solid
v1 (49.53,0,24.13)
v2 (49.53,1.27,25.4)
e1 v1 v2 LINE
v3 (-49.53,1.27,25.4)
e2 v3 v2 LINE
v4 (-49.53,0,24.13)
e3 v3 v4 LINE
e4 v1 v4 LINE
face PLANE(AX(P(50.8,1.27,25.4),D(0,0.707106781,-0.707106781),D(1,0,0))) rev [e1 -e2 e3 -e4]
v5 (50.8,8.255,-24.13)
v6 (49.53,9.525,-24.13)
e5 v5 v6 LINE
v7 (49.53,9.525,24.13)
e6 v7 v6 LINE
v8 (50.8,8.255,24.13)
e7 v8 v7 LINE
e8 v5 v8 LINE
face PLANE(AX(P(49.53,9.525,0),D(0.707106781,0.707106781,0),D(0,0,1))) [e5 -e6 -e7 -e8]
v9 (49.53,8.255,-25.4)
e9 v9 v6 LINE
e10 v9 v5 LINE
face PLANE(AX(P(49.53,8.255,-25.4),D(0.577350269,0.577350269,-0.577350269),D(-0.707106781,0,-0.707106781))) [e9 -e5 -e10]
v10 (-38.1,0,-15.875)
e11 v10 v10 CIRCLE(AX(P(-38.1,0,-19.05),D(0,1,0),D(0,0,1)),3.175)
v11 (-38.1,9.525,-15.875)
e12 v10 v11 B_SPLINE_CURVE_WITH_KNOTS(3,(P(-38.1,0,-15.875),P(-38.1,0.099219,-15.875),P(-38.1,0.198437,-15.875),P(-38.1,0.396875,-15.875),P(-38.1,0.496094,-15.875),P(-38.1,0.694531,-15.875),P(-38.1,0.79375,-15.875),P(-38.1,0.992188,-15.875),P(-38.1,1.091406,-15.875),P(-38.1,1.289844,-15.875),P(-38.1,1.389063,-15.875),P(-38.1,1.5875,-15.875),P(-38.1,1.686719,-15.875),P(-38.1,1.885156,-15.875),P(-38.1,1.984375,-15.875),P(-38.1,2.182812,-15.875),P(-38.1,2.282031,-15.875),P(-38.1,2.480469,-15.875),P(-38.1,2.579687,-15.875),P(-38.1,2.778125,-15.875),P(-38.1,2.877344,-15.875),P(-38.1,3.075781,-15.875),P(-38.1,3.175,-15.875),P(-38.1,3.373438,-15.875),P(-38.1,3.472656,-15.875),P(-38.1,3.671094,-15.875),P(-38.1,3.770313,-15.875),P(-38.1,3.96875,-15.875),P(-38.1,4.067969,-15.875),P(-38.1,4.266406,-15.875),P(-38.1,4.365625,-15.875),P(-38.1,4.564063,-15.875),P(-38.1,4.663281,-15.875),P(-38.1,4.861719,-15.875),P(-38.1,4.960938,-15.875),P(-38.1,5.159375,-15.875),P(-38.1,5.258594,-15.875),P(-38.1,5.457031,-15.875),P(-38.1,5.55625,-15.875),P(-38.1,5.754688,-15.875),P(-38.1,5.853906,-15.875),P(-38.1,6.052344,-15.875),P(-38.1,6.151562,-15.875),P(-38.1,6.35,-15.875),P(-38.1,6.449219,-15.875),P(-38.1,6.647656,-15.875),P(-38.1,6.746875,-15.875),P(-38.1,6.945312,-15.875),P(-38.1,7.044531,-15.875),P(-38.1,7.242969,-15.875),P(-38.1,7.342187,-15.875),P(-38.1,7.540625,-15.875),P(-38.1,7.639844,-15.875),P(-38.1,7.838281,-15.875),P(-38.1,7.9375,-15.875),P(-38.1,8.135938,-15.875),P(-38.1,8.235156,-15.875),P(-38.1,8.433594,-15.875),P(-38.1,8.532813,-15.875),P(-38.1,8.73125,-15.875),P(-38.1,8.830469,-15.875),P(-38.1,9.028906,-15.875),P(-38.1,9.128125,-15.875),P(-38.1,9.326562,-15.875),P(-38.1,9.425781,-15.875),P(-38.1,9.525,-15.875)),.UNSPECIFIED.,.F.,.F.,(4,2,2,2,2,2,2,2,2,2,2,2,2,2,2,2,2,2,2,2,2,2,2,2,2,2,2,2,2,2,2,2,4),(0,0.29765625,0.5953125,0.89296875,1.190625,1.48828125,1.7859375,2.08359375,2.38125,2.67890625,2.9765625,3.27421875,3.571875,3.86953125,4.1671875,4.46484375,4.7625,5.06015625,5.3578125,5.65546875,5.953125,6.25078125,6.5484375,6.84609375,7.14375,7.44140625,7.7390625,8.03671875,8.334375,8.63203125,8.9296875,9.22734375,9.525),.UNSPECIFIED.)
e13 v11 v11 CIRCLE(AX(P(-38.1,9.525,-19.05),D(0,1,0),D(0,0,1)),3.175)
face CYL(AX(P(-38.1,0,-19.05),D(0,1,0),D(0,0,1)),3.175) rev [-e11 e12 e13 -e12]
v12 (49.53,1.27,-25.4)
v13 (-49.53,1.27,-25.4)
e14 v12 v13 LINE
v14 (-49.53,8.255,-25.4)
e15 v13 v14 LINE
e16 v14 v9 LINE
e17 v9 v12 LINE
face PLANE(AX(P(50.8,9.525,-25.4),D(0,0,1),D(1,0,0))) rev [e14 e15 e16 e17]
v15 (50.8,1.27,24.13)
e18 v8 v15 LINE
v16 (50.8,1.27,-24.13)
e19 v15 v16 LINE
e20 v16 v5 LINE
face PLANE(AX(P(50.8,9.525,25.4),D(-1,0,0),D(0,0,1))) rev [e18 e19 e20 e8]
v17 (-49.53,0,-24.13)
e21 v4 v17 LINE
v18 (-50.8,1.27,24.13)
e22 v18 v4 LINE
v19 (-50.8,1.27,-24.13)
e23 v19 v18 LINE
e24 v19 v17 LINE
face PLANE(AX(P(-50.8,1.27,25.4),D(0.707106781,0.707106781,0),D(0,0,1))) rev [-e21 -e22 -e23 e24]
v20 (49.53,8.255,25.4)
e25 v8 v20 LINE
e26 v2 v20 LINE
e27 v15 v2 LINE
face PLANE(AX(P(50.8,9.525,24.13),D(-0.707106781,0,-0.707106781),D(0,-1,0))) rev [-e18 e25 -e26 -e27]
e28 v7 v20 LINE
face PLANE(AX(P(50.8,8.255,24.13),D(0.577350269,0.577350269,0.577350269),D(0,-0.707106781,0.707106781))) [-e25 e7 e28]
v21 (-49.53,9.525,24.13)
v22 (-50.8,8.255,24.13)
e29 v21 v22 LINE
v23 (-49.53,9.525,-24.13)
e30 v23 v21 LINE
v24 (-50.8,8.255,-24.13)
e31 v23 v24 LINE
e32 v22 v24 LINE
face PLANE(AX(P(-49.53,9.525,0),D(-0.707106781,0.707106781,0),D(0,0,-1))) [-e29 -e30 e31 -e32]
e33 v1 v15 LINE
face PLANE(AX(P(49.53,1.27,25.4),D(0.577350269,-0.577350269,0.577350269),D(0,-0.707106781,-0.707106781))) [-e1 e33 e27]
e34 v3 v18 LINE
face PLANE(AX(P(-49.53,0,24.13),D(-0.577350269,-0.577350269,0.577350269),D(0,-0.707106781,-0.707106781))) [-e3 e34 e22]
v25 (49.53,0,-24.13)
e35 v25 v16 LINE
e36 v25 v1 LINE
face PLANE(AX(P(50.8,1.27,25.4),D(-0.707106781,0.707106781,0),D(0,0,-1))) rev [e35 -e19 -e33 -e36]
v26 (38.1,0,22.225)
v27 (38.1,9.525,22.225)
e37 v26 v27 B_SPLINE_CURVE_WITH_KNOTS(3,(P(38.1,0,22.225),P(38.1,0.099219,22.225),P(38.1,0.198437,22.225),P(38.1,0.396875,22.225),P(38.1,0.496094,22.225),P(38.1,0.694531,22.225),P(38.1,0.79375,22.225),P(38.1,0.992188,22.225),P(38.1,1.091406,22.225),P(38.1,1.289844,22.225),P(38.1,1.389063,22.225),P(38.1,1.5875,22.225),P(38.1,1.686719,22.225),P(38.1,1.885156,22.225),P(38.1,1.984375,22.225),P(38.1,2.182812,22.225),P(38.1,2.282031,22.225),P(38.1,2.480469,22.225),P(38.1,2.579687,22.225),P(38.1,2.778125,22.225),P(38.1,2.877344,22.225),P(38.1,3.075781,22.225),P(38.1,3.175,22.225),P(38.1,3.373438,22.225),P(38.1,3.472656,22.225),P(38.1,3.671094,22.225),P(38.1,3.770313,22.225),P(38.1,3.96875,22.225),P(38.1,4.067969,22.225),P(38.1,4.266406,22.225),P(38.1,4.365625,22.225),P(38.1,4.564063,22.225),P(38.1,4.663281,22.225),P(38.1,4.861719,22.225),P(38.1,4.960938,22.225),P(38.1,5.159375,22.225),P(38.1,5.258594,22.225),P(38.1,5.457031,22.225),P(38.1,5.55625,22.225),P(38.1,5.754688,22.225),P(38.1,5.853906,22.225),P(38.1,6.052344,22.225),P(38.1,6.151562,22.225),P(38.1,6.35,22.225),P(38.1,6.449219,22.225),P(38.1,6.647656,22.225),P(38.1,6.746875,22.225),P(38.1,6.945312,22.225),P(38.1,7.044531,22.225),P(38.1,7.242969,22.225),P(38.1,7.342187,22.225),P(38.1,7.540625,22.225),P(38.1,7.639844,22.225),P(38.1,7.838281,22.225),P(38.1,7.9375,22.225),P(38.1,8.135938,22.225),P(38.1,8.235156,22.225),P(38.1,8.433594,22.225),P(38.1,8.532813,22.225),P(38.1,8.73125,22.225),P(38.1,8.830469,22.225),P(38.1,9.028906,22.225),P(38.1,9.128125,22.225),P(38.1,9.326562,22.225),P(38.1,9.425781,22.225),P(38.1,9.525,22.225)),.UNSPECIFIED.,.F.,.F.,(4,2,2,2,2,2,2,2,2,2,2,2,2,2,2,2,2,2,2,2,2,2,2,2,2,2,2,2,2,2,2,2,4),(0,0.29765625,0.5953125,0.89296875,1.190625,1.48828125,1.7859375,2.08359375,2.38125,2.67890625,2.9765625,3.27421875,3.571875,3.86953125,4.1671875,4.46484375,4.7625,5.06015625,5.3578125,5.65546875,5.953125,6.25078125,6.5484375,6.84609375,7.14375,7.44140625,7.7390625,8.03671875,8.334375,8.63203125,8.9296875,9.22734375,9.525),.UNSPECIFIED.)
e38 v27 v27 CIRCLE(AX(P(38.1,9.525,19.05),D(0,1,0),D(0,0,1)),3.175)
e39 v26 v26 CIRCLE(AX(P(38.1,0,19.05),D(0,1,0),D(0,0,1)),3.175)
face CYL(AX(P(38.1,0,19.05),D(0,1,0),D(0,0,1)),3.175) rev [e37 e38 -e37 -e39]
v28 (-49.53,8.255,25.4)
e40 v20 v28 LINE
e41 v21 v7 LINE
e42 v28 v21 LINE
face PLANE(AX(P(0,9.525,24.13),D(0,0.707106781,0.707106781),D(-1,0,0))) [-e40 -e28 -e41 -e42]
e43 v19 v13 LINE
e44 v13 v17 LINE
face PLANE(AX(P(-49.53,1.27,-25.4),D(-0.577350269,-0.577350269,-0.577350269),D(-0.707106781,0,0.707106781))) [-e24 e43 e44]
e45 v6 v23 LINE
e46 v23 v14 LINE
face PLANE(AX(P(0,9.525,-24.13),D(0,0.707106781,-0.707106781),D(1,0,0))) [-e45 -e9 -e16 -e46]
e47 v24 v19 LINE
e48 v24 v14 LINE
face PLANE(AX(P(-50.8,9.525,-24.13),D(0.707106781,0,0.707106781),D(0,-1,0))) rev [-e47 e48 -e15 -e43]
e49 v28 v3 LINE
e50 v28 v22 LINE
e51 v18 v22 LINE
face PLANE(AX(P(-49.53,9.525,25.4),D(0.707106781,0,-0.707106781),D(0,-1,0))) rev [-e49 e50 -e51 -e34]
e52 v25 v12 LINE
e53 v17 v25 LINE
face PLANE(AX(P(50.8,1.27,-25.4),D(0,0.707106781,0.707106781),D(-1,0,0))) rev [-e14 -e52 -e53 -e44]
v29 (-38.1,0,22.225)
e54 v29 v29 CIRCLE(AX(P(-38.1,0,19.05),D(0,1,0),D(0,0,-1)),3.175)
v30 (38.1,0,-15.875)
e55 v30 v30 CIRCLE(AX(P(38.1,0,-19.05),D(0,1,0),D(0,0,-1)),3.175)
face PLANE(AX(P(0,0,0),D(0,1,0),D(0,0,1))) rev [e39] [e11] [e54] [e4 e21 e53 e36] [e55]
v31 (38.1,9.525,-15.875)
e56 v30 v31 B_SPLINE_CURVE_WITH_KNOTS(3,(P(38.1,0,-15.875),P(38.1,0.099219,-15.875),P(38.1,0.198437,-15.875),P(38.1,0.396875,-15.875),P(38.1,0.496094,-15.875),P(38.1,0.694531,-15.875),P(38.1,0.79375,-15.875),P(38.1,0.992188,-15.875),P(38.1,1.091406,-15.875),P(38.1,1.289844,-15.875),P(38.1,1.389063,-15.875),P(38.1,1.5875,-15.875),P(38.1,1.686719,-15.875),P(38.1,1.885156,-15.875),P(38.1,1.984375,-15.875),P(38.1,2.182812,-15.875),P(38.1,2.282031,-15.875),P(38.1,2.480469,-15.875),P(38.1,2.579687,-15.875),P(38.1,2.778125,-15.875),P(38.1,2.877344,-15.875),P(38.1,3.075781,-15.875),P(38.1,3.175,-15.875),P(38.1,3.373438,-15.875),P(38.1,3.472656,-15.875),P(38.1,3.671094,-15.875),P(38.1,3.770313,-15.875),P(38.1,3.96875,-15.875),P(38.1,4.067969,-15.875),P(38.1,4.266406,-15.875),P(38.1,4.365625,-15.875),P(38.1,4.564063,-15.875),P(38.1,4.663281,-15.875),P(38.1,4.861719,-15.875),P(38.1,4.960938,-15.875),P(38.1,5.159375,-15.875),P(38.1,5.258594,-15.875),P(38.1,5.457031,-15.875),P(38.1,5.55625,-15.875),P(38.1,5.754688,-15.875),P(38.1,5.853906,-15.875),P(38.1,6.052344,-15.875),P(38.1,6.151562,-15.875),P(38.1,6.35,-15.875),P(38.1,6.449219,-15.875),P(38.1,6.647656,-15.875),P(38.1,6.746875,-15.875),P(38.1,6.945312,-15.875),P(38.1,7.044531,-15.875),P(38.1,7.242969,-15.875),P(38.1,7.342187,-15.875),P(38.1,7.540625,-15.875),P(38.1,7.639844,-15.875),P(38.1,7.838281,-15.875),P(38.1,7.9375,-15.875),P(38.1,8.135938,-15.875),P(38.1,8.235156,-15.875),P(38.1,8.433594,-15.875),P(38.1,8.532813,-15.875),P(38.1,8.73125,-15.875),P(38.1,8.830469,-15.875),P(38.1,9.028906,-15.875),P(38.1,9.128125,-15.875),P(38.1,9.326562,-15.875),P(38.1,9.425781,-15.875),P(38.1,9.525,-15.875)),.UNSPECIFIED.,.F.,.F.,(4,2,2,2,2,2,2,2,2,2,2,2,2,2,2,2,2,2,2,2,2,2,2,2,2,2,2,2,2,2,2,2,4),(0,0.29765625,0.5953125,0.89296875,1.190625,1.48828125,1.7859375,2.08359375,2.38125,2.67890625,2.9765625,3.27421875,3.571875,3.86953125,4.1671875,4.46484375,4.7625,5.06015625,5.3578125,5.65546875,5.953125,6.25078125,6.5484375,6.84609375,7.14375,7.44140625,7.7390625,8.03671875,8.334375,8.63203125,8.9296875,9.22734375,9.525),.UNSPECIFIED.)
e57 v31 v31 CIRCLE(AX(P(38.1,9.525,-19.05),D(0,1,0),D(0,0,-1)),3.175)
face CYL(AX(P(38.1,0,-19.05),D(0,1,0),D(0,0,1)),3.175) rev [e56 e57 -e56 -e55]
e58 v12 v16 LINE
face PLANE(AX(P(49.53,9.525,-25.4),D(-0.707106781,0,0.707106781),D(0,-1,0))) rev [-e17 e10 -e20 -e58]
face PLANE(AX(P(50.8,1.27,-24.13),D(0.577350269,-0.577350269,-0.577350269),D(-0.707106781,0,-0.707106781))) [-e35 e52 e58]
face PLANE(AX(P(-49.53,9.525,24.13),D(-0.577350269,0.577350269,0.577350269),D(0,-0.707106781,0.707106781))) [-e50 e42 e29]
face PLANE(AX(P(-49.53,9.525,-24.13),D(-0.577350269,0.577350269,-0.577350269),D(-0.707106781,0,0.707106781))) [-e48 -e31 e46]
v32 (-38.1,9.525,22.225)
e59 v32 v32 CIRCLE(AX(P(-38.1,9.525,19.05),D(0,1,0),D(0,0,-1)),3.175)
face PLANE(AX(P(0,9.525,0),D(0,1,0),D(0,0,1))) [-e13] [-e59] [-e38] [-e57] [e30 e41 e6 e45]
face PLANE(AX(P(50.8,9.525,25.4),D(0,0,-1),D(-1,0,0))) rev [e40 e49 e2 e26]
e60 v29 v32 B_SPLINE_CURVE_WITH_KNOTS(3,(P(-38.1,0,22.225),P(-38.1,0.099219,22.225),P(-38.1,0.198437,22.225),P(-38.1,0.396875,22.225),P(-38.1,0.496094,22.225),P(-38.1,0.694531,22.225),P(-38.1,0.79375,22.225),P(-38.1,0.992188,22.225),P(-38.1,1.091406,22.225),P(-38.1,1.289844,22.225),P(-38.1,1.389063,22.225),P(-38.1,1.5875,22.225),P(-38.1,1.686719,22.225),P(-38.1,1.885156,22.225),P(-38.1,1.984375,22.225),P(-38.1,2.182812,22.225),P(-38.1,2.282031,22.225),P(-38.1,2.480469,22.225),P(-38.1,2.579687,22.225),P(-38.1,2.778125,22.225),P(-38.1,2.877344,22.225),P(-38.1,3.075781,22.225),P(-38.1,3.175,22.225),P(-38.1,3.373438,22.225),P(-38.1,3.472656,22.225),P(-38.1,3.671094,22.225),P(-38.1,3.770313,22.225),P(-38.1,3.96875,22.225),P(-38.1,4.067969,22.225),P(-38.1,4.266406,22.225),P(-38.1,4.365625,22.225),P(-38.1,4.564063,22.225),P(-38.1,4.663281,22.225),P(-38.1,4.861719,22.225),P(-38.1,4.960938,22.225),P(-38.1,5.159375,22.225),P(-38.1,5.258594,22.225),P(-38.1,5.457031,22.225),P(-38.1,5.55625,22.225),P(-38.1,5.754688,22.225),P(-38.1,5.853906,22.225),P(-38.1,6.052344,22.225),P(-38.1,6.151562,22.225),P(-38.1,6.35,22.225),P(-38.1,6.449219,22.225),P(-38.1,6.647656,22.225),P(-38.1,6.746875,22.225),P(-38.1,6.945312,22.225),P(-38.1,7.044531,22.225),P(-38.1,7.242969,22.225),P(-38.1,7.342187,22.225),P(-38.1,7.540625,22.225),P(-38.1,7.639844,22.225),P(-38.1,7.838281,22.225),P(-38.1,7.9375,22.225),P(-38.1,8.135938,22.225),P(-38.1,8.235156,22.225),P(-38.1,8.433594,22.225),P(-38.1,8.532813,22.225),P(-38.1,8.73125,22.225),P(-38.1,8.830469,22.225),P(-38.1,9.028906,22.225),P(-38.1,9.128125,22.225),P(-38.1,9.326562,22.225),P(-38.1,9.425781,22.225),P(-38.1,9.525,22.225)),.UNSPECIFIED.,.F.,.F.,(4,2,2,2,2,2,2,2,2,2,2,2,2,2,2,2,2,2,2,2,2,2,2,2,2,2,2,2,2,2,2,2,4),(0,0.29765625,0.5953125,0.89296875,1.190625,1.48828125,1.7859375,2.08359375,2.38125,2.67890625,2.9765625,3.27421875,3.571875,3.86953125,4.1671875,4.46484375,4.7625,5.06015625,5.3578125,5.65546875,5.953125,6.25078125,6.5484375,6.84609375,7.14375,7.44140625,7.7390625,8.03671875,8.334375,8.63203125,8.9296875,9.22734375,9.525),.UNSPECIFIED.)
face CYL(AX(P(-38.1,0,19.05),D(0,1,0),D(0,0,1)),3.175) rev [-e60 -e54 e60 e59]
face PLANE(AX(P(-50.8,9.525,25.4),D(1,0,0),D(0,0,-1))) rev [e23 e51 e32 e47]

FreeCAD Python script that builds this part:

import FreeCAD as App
import Part
import Sketcher
from FreeCAD import Vector
Q = App.Units.Quantity

doc = App.newDocument("Part")
body = doc.addObject("PartDesign::Body", "Body")

# Sketch on XZ plane
sketch1 = body.newObject("Sketcher::SketchObject", "Sketch")
sketch1.AttachmentSupport = (doc.getObject("XZ_Plane"), [""])
sketch1.MapMode = "FlatFace"
sketch1.addGeometry(Part.LineSegment(Vector(-51, -25, 0), Vector(-51, 25, 0)), False)
sketch1.addGeometry(Part.LineSegment(Vector(-51, 25, 0), Vector(51, 25, 0)), False)
sketch1.addGeometry(Part.LineSegment(Vector(51, 25, 0), Vector(51, -25, 0)), False)
sketch1.addGeometry(Part.LineSegment(Vector(51, -25, 0), Vector(-51, -25, 0)), False)
sketch1.addConstraint(Sketcher.Constraint("Coincident", 0, 2, 1, 1))
sketch1.addConstraint(Sketcher.Constraint("Coincident", 1, 2, 2, 1))
sketch1.addConstraint(Sketcher.Constraint("Coincident", 2, 2, 3, 1))
sketch1.addConstraint(Sketcher.Constraint("Coincident", 3, 2, 0, 1))
sketch1.addConstraint(Sketcher.Constraint("Vertical", 0))
sketch1.addConstraint(Sketcher.Constraint("Horizontal", 1))
sketch1.addConstraint(Sketcher.Constraint("Vertical", 2))
sketch1.addConstraint(Sketcher.Constraint("Horizontal", 3))
sketch1.addConstraint(Sketcher.Constraint("Symmetric", 0, 2, 2, 2, -1, 1))
sketch1.addConstraint(Sketcher.Constraint("DistanceX", 1, 1, 1, 2, Q("4 in")))
sketch1.addConstraint(Sketcher.Constraint("DistanceY", 0, 1, 0, 2, Q("2 in")))
pad1 = body.newObject("PartDesign::Pad", "Pad")
pad1.Profile = sketch1
pad1.Length = Q("0.375 in")
pad1.Reversed = True
doc.recompute()

chamfer = body.newObject("PartDesign::Chamfer", "Chamfer")
chamfer.Base = (pad1, ["Edge1"])
chamfer.UseAllEdges = True
chamfer.Size = Q("0.05 in")

# Sketch on XZ plane
sketch2 = body.newObject("Sketcher::SketchObject", "Sketch001")
sketch2.AttachmentSupport = (doc.getObject("XZ_Plane"), [""])
sketch2.MapMode = "FlatFace"
sketch2.AttachmentOffset = App.Placement(Vector(0, 0, -0.375 * 25.4), App.Rotation())
sketch2.addGeometry(Part.Circle(Vector(-38.1, -19.1, 0), Vector(0, 0, 1), 3.2), False)
sketch2.addGeometry(Part.Circle(Vector(-38.1, 19.1, 0), Vector(0, 0, 1), 3.2), False)
sketch2.addGeometry(Part.Circle(Vector(38.1, 19.1, 0), Vector(0, 0, 1), 3.2), False)
sketch2.addGeometry(Part.Circle(Vector(38.1, -19.1, 0), Vector(0, 0, 1), 3.2), False)
sketch2.addConstraint(Sketcher.Constraint("Equal", 0, 1))
sketch2.addConstraint(Sketcher.Constraint("Equal", 1, 2))
sketch2.addConstraint(Sketcher.Constraint("Equal", 2, 3))
sketch2.addConstraint(Sketcher.Constraint("Symmetric", 0, 3, 2, 3, -1, 1))
sketch2.addConstraint(Sketcher.Constraint("Symmetric", 1, 3, 3, 3, -1, 1))
sketch2.addConstraint(Sketcher.Constraint("Symmetric", 1, 3, 2, 3, -2))
sketch2.addConstraint(Sketcher.Constraint("Diameter", 0, Q("0.25 in")))
sketch2.addConstraint(Sketcher.Constraint("DistanceX", 1, 3, 2, 3, Q("3 in")))
sketch2.addConstraint(Sketcher.Constraint("DistanceY", 0, 3, 1, 3, Q("1.5 in")))
pocket1 = body.newObject("PartDesign::Pocket", "Pocket")
pocket1.Profile = sketch2
pocket1.Type = "ThroughAll"
pocket1.Reversed = True

doc.recompute()
